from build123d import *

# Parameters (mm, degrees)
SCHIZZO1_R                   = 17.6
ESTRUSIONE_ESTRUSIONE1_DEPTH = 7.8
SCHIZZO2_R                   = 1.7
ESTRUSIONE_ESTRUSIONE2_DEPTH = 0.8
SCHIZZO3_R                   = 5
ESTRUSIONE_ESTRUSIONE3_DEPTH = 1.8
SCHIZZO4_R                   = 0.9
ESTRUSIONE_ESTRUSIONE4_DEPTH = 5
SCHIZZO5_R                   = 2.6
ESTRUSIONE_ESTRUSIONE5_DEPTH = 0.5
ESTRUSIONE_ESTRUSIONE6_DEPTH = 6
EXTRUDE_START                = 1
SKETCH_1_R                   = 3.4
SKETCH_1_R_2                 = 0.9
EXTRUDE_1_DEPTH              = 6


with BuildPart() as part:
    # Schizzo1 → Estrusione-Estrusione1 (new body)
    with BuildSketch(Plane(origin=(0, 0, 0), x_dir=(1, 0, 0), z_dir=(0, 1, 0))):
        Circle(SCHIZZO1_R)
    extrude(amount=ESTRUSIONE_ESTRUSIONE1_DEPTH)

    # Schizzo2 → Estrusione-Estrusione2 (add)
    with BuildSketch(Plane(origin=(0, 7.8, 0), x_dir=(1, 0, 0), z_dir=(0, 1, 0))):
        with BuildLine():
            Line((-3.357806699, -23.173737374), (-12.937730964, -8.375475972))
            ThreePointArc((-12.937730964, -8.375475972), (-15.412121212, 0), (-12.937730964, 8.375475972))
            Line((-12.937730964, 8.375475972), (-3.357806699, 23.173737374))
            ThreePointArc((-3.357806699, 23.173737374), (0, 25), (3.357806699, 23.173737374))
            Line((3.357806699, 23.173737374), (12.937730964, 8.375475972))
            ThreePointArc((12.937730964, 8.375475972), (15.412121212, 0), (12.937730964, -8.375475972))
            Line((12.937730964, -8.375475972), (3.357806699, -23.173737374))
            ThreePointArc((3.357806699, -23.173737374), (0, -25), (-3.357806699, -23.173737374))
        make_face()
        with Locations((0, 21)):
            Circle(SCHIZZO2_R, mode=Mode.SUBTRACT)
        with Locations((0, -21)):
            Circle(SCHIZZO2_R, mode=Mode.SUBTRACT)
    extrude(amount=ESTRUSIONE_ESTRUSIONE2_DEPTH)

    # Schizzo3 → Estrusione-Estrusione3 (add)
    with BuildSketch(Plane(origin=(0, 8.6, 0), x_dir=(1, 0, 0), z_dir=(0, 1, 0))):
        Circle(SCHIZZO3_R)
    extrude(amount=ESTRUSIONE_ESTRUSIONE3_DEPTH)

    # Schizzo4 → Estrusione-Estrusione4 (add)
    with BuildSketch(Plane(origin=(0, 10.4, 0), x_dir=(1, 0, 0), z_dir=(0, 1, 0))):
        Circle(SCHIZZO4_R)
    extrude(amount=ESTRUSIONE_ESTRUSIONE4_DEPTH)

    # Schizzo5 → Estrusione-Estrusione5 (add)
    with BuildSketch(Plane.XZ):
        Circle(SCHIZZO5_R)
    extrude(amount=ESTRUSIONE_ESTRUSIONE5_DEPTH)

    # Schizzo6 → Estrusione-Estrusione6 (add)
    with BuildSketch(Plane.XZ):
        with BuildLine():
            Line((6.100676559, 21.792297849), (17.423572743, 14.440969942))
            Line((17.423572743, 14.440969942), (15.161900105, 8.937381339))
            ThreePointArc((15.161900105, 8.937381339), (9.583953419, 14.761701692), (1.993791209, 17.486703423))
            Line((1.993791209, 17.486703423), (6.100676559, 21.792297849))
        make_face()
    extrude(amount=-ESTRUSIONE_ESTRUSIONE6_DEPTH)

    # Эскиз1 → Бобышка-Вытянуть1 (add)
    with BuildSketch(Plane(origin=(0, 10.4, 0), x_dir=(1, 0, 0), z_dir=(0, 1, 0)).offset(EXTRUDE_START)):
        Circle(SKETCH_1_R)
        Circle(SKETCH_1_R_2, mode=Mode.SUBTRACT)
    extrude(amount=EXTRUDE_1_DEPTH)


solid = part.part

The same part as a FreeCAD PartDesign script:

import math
import FreeCAD as App
import Part
import Sketcher

V = App.Vector
Q = App.Units.Quantity

doc = App.newDocument("Part")
body = doc.addObject("PartDesign::Body", "Body")

sketch1 = doc.addObject("Sketcher::SketchObject", "Sketch")
body.addObject(sketch1)
sketch1.AttachmentSupport = (doc.XZ_Plane, [""])
sketch1.MapMode = "FlatFace"
sketch1.addGeometry(Part.Circle(V(0, 0, 0), V(0, 0, 1), 17.6), False)
sketch1.addConstraint(Sketcher.Constraint("Coincident", 0, 3, -1, 1))
sketch1.addConstraint(Sketcher.Constraint("Diameter", 0, Q("35.2 mm")))
pad1 = doc.addObject("PartDesign::Pad", "Pad")
body.addObject(pad1)
pad1.Profile = sketch1
pad1.Length = 7.8
pad1.Reversed = True

sketch2 = doc.addObject("Sketcher::SketchObject", "Sketch001")
body.addObject(sketch2)
sketch2.AttachmentSupport = (doc.XZ_Plane, [""])
sketch2.MapMode = "FlatFace"
sketch2.AttachmentOffset = App.Placement(V(0, 0, -7.8), App.Rotation())
sketch2.addGeometry(Part.LineSegment(V(-12.937731, 8.375476, 0), V(-3.357807, 23.173737, 0)), False)
sketch2.addGeometry(Part.ArcOfCircle(Part.Circle(V(0, 21, 0), V(0, 0, 1), 4), math.radians(32.917737), math.radians(147.082263)), False)
sketch2.addGeometry(Part.LineSegment(V(3.357807, 23.173737, 0), V(12.937731, 8.375476, 0)), False)
sketch2.addGeometry(Part.ArcOfCircle(Part.Circle(V(0, 0, 0), V(0, 0, 1), 15.412121), math.radians(-32.917737), math.radians(32.917737)), False)
sketch2.addGeometry(Part.LineSegment(V(12.937731, -8.375476, 0), V(3.357807, -23.173737, 0)), False)
sketch2.addGeometry(Part.ArcOfCircle(Part.Circle(V(0, -21, 0), V(0, 0, 1), 4), math.radians(-147.082263), math.radians(-32.917737)), False)
sketch2.addGeometry(Part.LineSegment(V(-3.357807, -23.173737, 0), V(-12.937731, -8.375476, 0)), False)
sketch2.addGeometry(Part.ArcOfCircle(Part.Circle(V(0, 0, 0), V(0, 0, 1), 15.412121), math.radians(147.082263), math.radians(212.917737)), False)
sketch2.addGeometry(Part.Circle(V(0, 21, 0), V(0, 0, 1), 1.7), False)
sketch2.addGeometry(Part.Circle(V(0, -21, 0), V(0, 0, 1), 1.7), False)
sketch2.addConstraint(Sketcher.Constraint("Tangent", 0, 2, 1, 2))
sketch2.addConstraint(Sketcher.Constraint("Tangent", 1, 1, 2, 1))
sketch2.addConstraint(Sketcher.Constraint("Tangent", 2, 2, 3, 2))
sketch2.addConstraint(Sketcher.Constraint("Tangent", 3, 1, 4, 1))
sketch2.addConstraint(Sketcher.Constraint("Tangent", 4, 2, 5, 2))
sketch2.addConstraint(Sketcher.Constraint("Tangent", 5, 1, 6, 1))
sketch2.addConstraint(Sketcher.Constraint("Tangent", 6, 2, 7, 2))
sketch2.addConstraint(Sketcher.Constraint("Tangent", 7, 1, 0, 1))
sketch2.addConstraint(Sketcher.Constraint("Coincident", 3, 3, -1, 1))
sketch2.addConstraint(Sketcher.Constraint("Coincident", 7, 3, -1, 1))
sketch2.addConstraint(Sketcher.Constraint("Coincident", 8, 3, 1, 3))
sketch2.addConstraint(Sketcher.Constraint("Coincident", 9, 3, 5, 3))
sketch2.addConstraint(Sketcher.Constraint("Equal", 1, 5))
sketch2.addConstraint(Sketcher.Constraint("Equal", 3, 7))
sketch2.addConstraint(Sketcher.Constraint("Equal", 8, 9))
sketch2.addConstraint(Sketcher.Constraint("Symmetric", 1, 3, 5, 3, -1, 1))
sketch2.addConstraint(Sketcher.Constraint("PointOnObject", 1, 3, -2))
sketch2.addConstraint(Sketcher.Constraint("Radius", 1, Q("4 mm")))
sketch2.addConstraint(Sketcher.Constraint("Diameter", 8, Q("3.4 mm")))
sketch2.addConstraint(Sketcher.Constraint("DistanceY", -1, 1, 1, 3, Q("21 mm")))
sketch2.addConstraint(Sketcher.Constraint("Radius", 3, Q("15.412121 mm")))
pad2 = doc.addObject("PartDesign::Pad", "Pad001")
body.addObject(pad2)
pad2.Profile = sketch2
pad2.Length = 0.8
pad2.Reversed = True

sketch3 = doc.addObject("Sketcher::SketchObject", "Sketch002")
body.addObject(sketch3)
sketch3.AttachmentSupport = (doc.XZ_Plane, [""])
sketch3.MapMode = "FlatFace"
sketch3.AttachmentOffset = App.Placement(V(0, 0, -8.6), App.Rotation())
sketch3.addGeometry(Part.Circle(V(0, 0, 0), V(0, 0, 1), 5), False)
sketch3.addConstraint(Sketcher.Constraint("Coincident", 0, 3, -1, 1))
sketch3.addConstraint(Sketcher.Constraint("Diameter", 0, Q("10 mm")))
pad3 = doc.addObject("PartDesign::Pad", "Pad002")
body.addObject(pad3)
pad3.Profile = sketch3
pad3.Length = 1.8
pad3.Reversed = True

sketch4 = doc.addObject("Sketcher::SketchObject", "Sketch003")
body.addObject(sketch4)
sketch4.AttachmentSupport = (doc.XZ_Plane, [""])
sketch4.MapMode = "FlatFace"
sketch4.AttachmentOffset = App.Placement(V(0, 0, -10.4), App.Rotation())
sketch4.addGeometry(Part.Circle(V(0, 0, 0), V(0, 0, 1), 0.9), False)
sketch4.addConstraint(Sketcher.Constraint("Coincident", 0, 3, -1, 1))
sketch4.addConstraint(Sketcher.Constraint("Diameter", 0, Q("1.8 mm")))
pad4 = doc.addObject("PartDesign::Pad", "Pad003")
body.addObject(pad4)
pad4.Profile = sketch4
pad4.Length = 5
pad4.Reversed = True

sketch5 = doc.addObject("Sketcher::SketchObject", "Sketch004")
body.addObject(sketch5)
sketch5.AttachmentSupport = (doc.XZ_Plane, [""])
sketch5.MapMode = "FlatFace"
sketch5.addGeometry(Part.Circle(V(0, 0, 0), V(0, 0, 1), 2.6), False)
sketch5.addConstraint(Sketcher.Constraint("Coincident", 0, 3, -1, 1))
sketch5.addConstraint(Sketcher.Constraint("Diameter", 0, Q("5.2 mm")))
pad5 = doc.addObject("PartDesign::Pad", "Pad004")
body.addObject(pad5)
pad5.Profile = sketch5
pad5.Length = 0.5

sketch6 = doc.addObject("Sketcher::SketchObject", "Sketch005")
body.addObject(sketch6)
sketch6.AttachmentSupport = (doc.XZ_Plane, [""])
sketch6.MapMode = "FlatFace"
sketch6.addGeometry(Part.LineSegment(V(17.423573, 14.44097, 0), V(6.100677, 21.792298, 0)), False)
sketch6.addGeometry(Part.LineSegment(V(6.100677, 21.792298, 0), V(1.993791, 17.486703, 0)), False)
sketch6.addGeometry(Part.ArcOfCircle(Part.Circle(V(0, 0, 0), V(0, 0, 1), 17.6), math.radians(30.517783), math.radians(83.495365)), False)
sketch6.addGeometry(Part.LineSegment(V(15.1619, 8.937381, 0), V(17.423573, 14.44097, 0)), False)
sketch6.addConstraint(Sketcher.Constraint("Coincident", 0, 2, 1, 1))
sketch6.addConstraint(Sketcher.Constraint("Coincident", 1, 2, 2, 2))
sketch6.addConstraint(Sketcher.Constraint("Coincident", 2, 1, 3, 1))
sketch6.addConstraint(Sketcher.Constraint("Coincident", 3, 2, 0, 1))
sketch6.addConstraint(Sketcher.Constraint("Coincident", 2, 3, -1, 1))
sketch6.addConstraint(Sketcher.Constraint("Equal", 1, 3))
sketch6.addConstraint(Sketcher.Constraint("Radius", 2, Q("17.6 mm")))
sketch6.addConstraint(Sketcher.Constraint("Distance", 0, Q("13.5 mm")))
sketch6.addConstraint(Sketcher.Constraint("DistanceX", -1, 1, 2, 1, Q("15.1619 mm")))
sketch6.addConstraint(Sketcher.Constraint("Distance", 1, Q("5.950181 mm")))
sketch6.addConstraint(Sketcher.Constraint("DistanceX", -1, 1, 1, 2, Q("1.993791 mm")))
sketch6.addConstraint(Sketcher.Constraint("DistanceY", -1, 1, 3, 2, Q("14.44097 mm")))
pad6 = doc.addObject("PartDesign::Pad", "Pad005")
body.addObject(pad6)
pad6.Profile = sketch6
pad6.Length = 6
pad6.Reversed = True

sketch7 = doc.addObject("Sketcher::SketchObject", "Sketch006")
body.addObject(sketch7)
sketch7.AttachmentSupport = (doc.XZ_Plane, [""])
sketch7.MapMode = "FlatFace"
sketch7.AttachmentOffset = App.Placement(V(0, 0, -11.4), App.Rotation())
sketch7.addGeometry(Part.Circle(V(0, 0, 0), V(0, 0, 1), 3.4), False)
sketch7.addGeometry(Part.Circle(V(0, 0, 0), V(0, 0, 1), 0.9), False)
sketch7.addConstraint(Sketcher.Constraint("Coincident", 0, 3, -1, 1))
sketch7.addConstraint(Sketcher.Constraint("Coincident", 1, 3, -1, 1))
sketch7.addConstraint(Sketcher.Constraint("Diameter", 0, Q("6.8 mm")))
sketch7.addConstraint(Sketcher.Constraint("Diameter", 1, Q("1.8 mm")))
pad7 = doc.addObject("PartDesign::Pad", "Pad006")
body.addObject(pad7)
pad7.Profile = sketch7
pad7.Length = 6
pad7.Reversed = True

doc.recompute()
